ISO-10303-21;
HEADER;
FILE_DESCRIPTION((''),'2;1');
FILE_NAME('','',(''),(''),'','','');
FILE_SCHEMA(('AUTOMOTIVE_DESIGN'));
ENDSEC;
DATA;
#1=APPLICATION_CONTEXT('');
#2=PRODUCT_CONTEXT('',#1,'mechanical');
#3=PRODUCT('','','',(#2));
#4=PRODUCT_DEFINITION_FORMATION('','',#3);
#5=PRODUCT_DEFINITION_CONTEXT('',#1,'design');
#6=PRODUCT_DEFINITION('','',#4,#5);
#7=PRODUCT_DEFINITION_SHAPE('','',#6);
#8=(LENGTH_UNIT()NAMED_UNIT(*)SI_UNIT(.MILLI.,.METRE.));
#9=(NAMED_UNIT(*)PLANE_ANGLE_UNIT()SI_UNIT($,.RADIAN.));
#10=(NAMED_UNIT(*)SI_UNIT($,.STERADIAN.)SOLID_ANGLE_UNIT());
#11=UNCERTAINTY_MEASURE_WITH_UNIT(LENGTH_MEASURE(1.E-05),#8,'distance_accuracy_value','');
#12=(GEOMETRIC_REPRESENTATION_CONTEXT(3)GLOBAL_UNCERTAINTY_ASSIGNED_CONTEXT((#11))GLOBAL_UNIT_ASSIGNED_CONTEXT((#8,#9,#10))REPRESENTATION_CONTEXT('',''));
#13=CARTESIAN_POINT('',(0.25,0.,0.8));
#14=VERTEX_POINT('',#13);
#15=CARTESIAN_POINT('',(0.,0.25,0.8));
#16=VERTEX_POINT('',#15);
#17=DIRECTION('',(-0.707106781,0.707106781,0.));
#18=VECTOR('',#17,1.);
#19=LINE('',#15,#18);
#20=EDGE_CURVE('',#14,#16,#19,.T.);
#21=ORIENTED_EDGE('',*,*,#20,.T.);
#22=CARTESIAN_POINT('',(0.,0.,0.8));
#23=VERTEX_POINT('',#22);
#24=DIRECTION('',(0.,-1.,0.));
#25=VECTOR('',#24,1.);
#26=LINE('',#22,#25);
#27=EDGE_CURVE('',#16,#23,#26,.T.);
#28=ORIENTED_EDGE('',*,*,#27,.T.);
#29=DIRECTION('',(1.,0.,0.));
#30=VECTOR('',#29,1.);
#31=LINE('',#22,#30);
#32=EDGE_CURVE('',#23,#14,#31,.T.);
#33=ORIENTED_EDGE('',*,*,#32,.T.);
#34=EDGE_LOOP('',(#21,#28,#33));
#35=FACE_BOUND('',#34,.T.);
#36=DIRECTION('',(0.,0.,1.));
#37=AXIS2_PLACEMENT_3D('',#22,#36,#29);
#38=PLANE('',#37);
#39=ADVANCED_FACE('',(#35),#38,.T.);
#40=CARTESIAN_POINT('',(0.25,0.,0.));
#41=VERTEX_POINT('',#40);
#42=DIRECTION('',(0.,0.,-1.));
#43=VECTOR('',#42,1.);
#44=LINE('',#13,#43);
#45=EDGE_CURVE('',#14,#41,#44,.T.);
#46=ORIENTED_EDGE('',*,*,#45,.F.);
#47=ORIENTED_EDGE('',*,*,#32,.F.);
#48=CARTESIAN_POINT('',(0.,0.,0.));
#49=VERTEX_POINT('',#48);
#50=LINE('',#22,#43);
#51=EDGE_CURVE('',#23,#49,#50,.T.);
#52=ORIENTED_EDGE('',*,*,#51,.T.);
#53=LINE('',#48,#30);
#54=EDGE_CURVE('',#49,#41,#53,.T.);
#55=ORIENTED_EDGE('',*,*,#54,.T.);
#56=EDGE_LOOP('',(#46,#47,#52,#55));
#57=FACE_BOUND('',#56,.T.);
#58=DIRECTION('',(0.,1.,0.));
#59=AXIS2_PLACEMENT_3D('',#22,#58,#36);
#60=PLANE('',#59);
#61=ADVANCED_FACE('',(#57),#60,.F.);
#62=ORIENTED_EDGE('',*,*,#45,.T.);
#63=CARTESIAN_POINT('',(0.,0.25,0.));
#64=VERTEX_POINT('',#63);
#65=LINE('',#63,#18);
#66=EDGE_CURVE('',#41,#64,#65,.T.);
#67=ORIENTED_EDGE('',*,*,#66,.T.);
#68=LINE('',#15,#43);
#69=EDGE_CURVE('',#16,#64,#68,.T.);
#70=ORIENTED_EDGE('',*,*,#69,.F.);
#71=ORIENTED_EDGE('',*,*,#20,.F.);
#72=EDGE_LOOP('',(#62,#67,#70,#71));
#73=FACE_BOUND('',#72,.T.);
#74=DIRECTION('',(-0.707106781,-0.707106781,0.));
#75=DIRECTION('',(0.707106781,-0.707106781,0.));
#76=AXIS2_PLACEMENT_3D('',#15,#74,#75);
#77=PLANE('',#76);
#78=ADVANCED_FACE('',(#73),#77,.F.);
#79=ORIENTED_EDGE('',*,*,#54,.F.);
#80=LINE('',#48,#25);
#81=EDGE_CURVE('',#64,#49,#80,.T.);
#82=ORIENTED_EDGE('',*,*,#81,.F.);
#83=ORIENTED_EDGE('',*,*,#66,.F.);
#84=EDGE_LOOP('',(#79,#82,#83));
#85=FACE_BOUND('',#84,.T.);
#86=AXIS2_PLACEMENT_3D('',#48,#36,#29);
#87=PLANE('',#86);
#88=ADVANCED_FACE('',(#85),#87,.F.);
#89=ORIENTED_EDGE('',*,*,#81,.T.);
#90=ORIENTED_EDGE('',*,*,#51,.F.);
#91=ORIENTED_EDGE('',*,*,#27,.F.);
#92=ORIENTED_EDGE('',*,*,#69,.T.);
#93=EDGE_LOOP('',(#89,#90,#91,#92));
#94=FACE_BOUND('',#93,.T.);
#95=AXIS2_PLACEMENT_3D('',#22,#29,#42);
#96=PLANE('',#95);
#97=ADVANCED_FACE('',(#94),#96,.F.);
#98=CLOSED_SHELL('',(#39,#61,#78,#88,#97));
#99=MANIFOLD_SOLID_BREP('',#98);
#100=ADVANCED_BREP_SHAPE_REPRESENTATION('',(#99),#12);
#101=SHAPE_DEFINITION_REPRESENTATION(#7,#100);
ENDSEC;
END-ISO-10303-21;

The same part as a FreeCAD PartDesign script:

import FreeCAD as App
import Part
import Sketcher


def add_polygon(sketch, points):
    """Adds a closed chain of lines whose ends are joined by coincident constraints."""
    first, n = sketch.GeometryCount, len(points)
    for a, b in zip(points, points[1:] + points[:1]):
        sketch.addGeometry(Part.LineSegment(App.Vector(*a, 0), App.Vector(*b, 0)), False)
    for i in range(n):
        sketch.addConstraint(Sketcher.Constraint("Coincident", first + i, 2, first + (i + 1) % n, 1))

doc = App.newDocument("Part")
body = doc.addObject("PartDesign::Body", "Body")

# Sketch on XY plane
sketch1 = body.newObject("Sketcher::SketchObject", "Sketch")
sketch1.AttachmentSupport = (doc.getObject("XY_Plane"), [""])
sketch1.MapMode = "FlatFace"
add_polygon(sketch1, [(0, 0.25), (0, 0), (0.25, 0)])  # lines 0-2
sketch1.addConstraint(Sketcher.Constraint("Vertical", 0))
sketch1.addConstraint(Sketcher.Constraint("Horizontal", 1))
sketch1.addConstraint(Sketcher.Constraint("Coincident", 0, 2, -1, 1))
sketch1.addConstraint(Sketcher.Constraint("Equal", 1, 0))
sketch1.addConstraint(Sketcher.Constraint("DistanceX", 1, 1, 1, 2, 0.25))
pad1 = body.newObject("PartDesign::Pad", "Pad")
pad1.Profile = sketch1
pad1.Length = 0.8

doc.recompute()
